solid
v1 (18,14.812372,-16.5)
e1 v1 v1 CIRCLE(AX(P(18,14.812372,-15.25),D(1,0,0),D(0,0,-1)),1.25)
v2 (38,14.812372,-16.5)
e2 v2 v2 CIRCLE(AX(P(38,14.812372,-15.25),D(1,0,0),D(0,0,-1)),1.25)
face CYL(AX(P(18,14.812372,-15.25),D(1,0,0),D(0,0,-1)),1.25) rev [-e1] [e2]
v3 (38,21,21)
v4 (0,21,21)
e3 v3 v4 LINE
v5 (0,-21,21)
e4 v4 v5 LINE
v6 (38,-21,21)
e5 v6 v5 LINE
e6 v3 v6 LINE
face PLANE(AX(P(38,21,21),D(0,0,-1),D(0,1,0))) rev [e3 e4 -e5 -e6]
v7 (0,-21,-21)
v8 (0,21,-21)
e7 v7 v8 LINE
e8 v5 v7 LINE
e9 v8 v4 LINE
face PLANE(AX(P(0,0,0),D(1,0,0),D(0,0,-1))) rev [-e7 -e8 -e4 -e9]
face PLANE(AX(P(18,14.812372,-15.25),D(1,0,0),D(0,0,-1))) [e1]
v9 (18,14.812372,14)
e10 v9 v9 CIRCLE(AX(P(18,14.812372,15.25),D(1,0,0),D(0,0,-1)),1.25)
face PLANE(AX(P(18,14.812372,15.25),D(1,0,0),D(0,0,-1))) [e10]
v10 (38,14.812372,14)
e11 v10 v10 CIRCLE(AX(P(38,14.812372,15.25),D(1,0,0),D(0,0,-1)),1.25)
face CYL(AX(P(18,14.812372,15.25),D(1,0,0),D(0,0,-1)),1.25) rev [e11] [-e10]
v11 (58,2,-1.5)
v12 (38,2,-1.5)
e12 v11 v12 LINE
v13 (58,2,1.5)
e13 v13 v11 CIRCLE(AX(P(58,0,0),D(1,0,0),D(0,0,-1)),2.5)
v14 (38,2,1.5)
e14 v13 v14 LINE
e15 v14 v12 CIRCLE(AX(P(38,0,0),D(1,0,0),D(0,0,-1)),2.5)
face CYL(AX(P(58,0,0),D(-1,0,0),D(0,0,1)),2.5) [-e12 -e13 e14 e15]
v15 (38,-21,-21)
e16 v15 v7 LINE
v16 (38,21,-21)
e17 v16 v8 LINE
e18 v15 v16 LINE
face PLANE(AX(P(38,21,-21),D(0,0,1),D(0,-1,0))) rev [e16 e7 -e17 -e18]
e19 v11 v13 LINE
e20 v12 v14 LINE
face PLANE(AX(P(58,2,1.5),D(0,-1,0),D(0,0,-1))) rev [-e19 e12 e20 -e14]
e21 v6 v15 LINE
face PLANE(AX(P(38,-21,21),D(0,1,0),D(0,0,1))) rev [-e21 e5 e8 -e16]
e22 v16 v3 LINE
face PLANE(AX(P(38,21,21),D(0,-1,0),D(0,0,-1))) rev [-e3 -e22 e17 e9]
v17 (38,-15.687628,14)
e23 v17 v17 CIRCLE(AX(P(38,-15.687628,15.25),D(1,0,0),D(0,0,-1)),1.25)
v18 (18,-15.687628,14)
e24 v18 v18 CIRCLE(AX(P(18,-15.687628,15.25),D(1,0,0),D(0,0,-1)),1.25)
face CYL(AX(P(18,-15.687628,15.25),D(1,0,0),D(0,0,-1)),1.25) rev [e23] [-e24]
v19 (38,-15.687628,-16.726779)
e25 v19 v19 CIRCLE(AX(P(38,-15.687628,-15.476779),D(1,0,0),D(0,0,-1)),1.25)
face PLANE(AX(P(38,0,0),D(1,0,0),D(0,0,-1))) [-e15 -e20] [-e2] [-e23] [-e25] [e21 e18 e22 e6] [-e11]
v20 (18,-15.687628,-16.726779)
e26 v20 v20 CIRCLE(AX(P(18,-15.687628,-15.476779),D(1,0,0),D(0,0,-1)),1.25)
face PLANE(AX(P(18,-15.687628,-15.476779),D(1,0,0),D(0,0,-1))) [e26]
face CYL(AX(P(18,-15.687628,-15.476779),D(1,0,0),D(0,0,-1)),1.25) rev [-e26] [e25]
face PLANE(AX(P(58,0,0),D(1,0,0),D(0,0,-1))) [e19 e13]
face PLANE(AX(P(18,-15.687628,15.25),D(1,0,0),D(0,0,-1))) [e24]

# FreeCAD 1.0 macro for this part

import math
import FreeCAD as App
import Part
import Sketcher
Q = App.Units.Quantity

doc = App.newDocument("Part")
body = doc.addObject("PartDesign::Body", "Body")

# Sketch on YZ plane
sketch1 = doc.addObject("Sketcher::SketchObject", "Sketch")
body.addObject(sketch1)
sketch1.AttachmentSupport = (doc.YZ_Plane, [""])
sketch1.MapMode = "FlatFace"
sketch1.addGeometry(Part.LineSegment(App.Vector(21, 21, 0), App.Vector(-21, 21, 0)), False)
sketch1.addGeometry(Part.LineSegment(App.Vector(-21, 21, 0), App.Vector(-21, -21, 0)), False)
sketch1.addGeometry(Part.LineSegment(App.Vector(-21, -21, 0), App.Vector(21, -21, 0)), False)
sketch1.addGeometry(Part.LineSegment(App.Vector(21, -21, 0), App.Vector(21, 21, 0)), False)
sketch1.addConstraint(Sketcher.Constraint("Coincident", 0, 2, 1, 1))
sketch1.addConstraint(Sketcher.Constraint("Coincident", 1, 2, 2, 1))
sketch1.addConstraint(Sketcher.Constraint("Coincident", 2, 2, 3, 1))
sketch1.addConstraint(Sketcher.Constraint("Coincident", 3, 2, 0, 1))
sketch1.addConstraint(Sketcher.Constraint("Horizontal", 0))
sketch1.addConstraint(Sketcher.Constraint("Vertical", 1))
sketch1.addConstraint(Sketcher.Constraint("Horizontal", 2))
sketch1.addConstraint(Sketcher.Constraint("Vertical", 3))
sketch1.addConstraint(Sketcher.Constraint("Symmetric", 0, 2, 2, 2, -1, 1))
sketch1.addConstraint(Sketcher.Constraint("Equal", 2, 1))
sketch1.addConstraint(Sketcher.Constraint("DistanceX", 0, 2, 0, 1, Q("42 mm")))
pad1 = doc.addObject("PartDesign::Pad", "Pad")
body.addObject(pad1)
pad1.Profile = sketch1
pad1.Length = 38

# Sketch on YZ plane
sketch2 = doc.addObject("Sketcher::SketchObject", "Sketch001")
body.addObject(sketch2)
sketch2.AttachmentSupport = (doc.YZ_Plane, [""])
sketch2.MapMode = "FlatFace"
sketch2.AttachmentOffset = App.Placement(App.Vector(0, 0, 38), App.Rotation())
sketch2.addGeometry(Part.LineSegment(App.Vector(2, -1.5, 0), App.Vector(2, 1.5, 0)), False)
sketch2.addGeometry(Part.ArcOfCircle(Part.Circle(App.Vector(0, 0, 0), App.Vector(0, 0, 1), 2.5), math.radians(37), math.radians(323)), False)
sketch2.addConstraint(Sketcher.Constraint("Coincident", 0, 1, 1, 2))
sketch2.addConstraint(Sketcher.Constraint("Coincident", 1, 1, 0, 2))
sketch2.addConstraint(Sketcher.Constraint("Vertical", 0))
sketch2.addConstraint(Sketcher.Constraint("Coincident", 1, 3, -1, 1))
sketch2.addConstraint(Sketcher.Constraint("Radius", 1, Q("2.5 mm")))
sketch2.addConstraint(Sketcher.Constraint("DistanceY", 0, 1, 0, 2, Q("3 mm")))
pad2 = doc.addObject("PartDesign::Pad", "Pad001")
body.addObject(pad2)
pad2.Profile = sketch2
pad2.Length = 20

# Sketch on YZ plane
sketch3 = doc.addObject("Sketcher::SketchObject", "Sketch002")
body.addObject(sketch3)
sketch3.AttachmentSupport = (doc.YZ_Plane, [""])
sketch3.MapMode = "FlatFace"
sketch3.AttachmentOffset = App.Placement(App.Vector(0, 0, 38), App.Rotation())
sketch3.addGeometry(Part.Circle(App.Vector(14.8, 15.2, 0), App.Vector(0, 0, 1), 1.2), False)
sketch3.addGeometry(Part.Circle(App.Vector(14.8, -15.2, 0), App.Vector(0, 0, 1), 1.2), False)
sketch3.addGeometry(Part.Circle(App.Vector(-15.7, -15.5, 0), App.Vector(0, 0, 1), 1.2), False)
sketch3.addGeometry(Part.Circle(App.Vector(-15.7, 15.2, 0), App.Vector(0, 0, 1), 1.2), False)
sketch3.addConstraint(Sketcher.Constraint("Equal", 0, 1))
sketch3.addConstraint(Sketcher.Constraint("Equal", 1, 2))
sketch3.addConstraint(Sketcher.Constraint("Equal", 2, 3))
sketch3.addConstraint(Sketcher.Constraint("Symmetric", 0, 3, 1, 3, -1))
sketch3.addConstraint(Sketcher.Constraint("Horizontal", 0, 3, 3, 3))
sketch3.addConstraint(Sketcher.Constraint("Vertical", 2, 3, 3, 3))
sketch3.addConstraint(Sketcher.Constraint("Diameter", 0, Q("2.5 mm")))
sketch3.addConstraint(Sketcher.Constraint("DistanceY", 1, 3, 0, 3, Q("30.5 mm")))
sketch3.addConstraint(Sketcher.Constraint("DistanceX", 2, 3, 1, 3, Q("30.5 mm")))
sketch3.addConstraint(Sketcher.Constraint("DistanceY", 2, 3, -1, 1, Q("15.476779 mm")))
sketch3.addConstraint(Sketcher.Constraint("DistanceX", -1, 1, 0, 3, Q("14.812372 mm")))
pocket1 = doc.addObject("PartDesign::Pocket", "Pocket")
body.addObject(pocket1)
pocket1.Profile = sketch3
pocket1.Length = 20

doc.recompute()
